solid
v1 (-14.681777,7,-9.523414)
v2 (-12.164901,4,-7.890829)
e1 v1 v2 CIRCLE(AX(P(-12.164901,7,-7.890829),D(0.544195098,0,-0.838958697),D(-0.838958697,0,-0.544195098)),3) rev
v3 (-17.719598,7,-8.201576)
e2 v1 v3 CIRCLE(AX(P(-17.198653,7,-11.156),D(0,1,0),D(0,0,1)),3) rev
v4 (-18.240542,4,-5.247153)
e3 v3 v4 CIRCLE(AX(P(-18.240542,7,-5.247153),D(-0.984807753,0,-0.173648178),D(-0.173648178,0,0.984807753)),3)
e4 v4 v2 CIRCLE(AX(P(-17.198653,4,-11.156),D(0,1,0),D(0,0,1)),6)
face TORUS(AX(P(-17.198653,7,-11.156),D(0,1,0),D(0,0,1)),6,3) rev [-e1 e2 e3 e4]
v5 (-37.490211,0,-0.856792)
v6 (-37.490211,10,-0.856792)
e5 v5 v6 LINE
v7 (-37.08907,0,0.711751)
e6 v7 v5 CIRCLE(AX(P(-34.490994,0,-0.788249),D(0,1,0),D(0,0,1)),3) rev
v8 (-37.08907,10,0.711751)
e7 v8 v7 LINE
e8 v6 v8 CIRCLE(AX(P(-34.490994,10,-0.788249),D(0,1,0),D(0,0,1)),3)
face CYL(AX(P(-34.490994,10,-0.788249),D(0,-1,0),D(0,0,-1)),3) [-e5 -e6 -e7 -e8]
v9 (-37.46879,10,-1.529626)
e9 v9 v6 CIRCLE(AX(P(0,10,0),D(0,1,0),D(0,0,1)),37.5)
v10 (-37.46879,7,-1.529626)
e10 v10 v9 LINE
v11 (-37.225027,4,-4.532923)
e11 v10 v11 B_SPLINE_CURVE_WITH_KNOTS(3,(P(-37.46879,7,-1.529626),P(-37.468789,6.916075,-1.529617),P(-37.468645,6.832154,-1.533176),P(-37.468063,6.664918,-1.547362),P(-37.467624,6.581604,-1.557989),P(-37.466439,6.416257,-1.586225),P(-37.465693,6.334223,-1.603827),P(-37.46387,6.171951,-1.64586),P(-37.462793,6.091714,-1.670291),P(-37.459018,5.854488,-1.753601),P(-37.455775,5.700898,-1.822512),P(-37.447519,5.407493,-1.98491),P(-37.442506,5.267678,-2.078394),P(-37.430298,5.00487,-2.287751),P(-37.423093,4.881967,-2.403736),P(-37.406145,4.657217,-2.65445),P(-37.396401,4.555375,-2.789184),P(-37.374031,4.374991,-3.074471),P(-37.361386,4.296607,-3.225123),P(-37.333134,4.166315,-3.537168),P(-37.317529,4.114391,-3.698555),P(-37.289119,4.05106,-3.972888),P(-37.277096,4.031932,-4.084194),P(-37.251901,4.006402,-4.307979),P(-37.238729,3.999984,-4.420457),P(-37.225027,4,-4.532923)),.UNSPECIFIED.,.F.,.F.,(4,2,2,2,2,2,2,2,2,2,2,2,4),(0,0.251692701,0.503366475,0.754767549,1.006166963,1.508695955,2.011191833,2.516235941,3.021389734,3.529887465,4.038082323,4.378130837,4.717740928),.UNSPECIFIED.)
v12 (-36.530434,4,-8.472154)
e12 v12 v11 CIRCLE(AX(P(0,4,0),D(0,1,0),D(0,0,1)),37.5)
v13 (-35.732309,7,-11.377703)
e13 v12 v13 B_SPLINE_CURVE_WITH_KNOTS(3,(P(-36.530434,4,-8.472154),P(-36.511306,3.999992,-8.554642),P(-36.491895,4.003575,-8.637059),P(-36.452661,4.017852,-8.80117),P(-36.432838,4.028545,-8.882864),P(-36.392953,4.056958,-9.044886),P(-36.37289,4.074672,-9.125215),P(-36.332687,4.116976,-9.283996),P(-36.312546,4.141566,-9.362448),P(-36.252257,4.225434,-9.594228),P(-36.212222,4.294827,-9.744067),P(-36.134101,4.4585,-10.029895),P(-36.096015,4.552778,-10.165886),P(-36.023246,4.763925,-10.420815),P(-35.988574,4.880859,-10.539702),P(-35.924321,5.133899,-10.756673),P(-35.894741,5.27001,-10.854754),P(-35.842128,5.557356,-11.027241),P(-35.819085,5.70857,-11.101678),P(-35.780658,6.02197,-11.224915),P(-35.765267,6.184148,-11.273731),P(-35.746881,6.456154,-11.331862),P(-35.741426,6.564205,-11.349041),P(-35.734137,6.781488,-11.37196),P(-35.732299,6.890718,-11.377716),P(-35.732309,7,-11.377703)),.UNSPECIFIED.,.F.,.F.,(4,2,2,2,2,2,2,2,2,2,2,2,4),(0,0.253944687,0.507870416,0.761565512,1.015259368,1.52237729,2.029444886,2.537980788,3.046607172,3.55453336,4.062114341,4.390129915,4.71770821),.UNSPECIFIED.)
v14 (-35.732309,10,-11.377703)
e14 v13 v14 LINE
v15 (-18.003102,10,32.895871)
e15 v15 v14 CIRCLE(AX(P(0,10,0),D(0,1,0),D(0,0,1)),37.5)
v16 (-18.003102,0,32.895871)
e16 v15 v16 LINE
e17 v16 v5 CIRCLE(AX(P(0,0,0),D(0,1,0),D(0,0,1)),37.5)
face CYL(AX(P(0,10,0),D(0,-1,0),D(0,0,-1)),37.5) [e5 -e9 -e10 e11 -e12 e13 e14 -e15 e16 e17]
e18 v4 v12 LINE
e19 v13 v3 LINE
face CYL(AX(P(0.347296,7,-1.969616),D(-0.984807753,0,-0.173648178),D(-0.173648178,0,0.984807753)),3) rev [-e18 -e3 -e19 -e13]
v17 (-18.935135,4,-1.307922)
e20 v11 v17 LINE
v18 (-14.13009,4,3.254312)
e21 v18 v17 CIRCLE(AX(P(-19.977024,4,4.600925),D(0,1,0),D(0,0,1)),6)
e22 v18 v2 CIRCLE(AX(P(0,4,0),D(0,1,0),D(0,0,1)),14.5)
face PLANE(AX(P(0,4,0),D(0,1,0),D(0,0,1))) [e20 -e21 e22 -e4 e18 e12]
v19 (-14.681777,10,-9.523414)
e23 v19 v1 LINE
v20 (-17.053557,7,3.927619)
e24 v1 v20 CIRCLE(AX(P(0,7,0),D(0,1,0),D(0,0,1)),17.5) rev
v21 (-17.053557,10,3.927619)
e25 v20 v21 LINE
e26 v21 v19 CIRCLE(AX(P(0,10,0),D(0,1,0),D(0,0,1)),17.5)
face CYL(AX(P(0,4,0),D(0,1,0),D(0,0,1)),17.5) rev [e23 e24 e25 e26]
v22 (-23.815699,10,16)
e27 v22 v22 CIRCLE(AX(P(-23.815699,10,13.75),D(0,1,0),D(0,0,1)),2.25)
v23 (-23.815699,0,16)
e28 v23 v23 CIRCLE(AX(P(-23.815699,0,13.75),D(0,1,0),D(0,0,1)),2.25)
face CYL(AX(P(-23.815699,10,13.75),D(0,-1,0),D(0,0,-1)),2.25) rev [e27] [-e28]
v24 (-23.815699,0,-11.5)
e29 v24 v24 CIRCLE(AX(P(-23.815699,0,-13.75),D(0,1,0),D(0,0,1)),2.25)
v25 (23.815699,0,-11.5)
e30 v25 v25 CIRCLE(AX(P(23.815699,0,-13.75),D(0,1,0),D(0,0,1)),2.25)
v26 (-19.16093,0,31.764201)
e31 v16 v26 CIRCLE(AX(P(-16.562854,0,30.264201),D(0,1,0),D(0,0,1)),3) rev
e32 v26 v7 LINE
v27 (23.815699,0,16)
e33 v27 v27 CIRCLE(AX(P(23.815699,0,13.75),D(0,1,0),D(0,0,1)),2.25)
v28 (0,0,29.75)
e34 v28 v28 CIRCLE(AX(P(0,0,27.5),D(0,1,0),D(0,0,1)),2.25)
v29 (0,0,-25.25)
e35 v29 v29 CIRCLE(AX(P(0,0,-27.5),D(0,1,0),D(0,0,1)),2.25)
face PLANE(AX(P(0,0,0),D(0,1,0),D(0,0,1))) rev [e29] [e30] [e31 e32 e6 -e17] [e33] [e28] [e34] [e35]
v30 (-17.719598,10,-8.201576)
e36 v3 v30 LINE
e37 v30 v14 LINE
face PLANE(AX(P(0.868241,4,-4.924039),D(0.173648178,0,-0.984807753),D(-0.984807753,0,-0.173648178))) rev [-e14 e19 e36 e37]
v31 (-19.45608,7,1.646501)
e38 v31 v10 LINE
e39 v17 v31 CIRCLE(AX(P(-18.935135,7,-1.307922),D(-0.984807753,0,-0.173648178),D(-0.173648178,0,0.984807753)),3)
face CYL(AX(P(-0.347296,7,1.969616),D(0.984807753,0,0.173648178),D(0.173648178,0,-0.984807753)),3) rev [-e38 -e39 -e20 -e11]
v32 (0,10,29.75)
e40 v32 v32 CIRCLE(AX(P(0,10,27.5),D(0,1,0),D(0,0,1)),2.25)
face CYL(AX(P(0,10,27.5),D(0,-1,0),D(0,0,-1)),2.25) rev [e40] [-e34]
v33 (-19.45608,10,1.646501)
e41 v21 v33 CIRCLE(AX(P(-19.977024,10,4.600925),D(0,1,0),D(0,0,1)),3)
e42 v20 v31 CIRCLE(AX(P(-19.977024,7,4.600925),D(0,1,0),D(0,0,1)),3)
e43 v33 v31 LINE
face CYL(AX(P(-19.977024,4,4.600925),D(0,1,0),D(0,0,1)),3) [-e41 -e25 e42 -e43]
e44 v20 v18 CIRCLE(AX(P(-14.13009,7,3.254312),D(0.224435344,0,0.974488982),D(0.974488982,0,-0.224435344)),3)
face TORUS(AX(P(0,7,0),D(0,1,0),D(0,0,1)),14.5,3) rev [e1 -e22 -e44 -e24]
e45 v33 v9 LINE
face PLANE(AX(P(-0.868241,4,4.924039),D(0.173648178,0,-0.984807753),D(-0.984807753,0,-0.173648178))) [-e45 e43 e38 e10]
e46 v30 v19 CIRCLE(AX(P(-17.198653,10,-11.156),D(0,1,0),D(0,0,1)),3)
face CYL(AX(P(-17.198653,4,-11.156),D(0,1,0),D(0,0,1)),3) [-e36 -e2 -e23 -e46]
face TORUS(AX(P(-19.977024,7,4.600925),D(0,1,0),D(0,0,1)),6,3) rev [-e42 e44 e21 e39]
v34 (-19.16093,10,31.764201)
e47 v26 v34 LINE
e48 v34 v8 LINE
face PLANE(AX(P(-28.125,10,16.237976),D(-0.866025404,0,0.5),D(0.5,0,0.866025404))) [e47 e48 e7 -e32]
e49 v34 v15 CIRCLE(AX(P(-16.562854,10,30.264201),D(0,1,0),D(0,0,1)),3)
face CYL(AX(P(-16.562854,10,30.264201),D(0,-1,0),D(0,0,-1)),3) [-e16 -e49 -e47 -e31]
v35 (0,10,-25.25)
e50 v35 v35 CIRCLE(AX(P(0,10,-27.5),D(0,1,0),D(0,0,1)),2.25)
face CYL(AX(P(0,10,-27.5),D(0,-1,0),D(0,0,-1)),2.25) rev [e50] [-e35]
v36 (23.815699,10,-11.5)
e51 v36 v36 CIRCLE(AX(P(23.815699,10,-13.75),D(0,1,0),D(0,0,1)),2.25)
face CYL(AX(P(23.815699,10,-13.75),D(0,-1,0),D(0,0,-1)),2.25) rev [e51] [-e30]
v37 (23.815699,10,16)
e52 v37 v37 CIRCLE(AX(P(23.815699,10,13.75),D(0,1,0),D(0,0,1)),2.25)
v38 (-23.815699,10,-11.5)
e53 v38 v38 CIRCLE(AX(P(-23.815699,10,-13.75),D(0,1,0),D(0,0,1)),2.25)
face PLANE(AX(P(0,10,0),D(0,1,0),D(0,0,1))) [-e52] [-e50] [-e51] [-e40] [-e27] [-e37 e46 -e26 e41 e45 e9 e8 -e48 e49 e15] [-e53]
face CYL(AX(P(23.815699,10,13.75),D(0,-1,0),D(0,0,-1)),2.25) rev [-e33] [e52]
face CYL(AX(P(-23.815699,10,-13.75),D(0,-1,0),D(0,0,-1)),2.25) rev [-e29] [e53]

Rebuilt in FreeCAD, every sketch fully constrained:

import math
import FreeCAD as App
import Part
import Sketcher

V = App.Vector
Q = App.Units.Quantity


def edges_at(feature, points):
    """Names of the edges that pass closest to the given points."""
    edges = feature.Shape.Edges
    near = lambda p: min(range(len(edges)), key=lambda i: edges[i].distToShape(Part.Vertex(*p))[0])
    return sorted({f"Edge{near(p) + 1}" for p in points})

doc = App.newDocument("Part")
body = doc.addObject("PartDesign::Body", "Body")

sketch1 = body.newObject("Sketcher::SketchObject", "Sketch")
sketch1.AttachmentSupport = (doc.getObject("XZ_Plane"), [""])
sketch1.MapMode = "FlatFace"
sketch1.addGeometry([
    Part.Circle(V(0, 0, 0), V(0, 0, 1), 37.5),
    Part.Circle(V(-23.8, 13.8, 0), V(0, 0, 1), 2.2),
    Part.Circle(V(0, 27.5, 0), V(0, 0, 1), 2.2),
    Part.Circle(V(23.8, 13.8, 0), V(0, 0, 1), 2.2),
    Part.Circle(V(-23.8, -13.8, 0), V(0, 0, 1), 2.2),
    Part.Circle(V(23.8, -13.8, 0), V(0, 0, 1), 2.2),
    Part.Circle(V(0, -27.5, 0), V(0, 0, 1), 2.2),
], False)
sketch1.addConstraint([
    Sketcher.Constraint("Coincident", 0, 3, -1, 1),
    Sketcher.Constraint("Equal", 1, 2),
    Sketcher.Constraint("Equal", 2, 3),
    Sketcher.Constraint("Equal", 3, 4),
    Sketcher.Constraint("Equal", 4, 5),
    Sketcher.Constraint("Equal", 5, 6),
    Sketcher.Constraint("Symmetric", 3, 3, 4, 3, -1, 1),
    Sketcher.Constraint("Symmetric", 1, 3, 5, 3, -1, 1),
    Sketcher.Constraint("Symmetric", 2, 3, 6, 3, -1, 1),
    Sketcher.Constraint("Symmetric", 1, 3, 3, 3, -2),
    Sketcher.Constraint("PointOnObject", 2, 3, -2),
    Sketcher.Constraint("Diameter", 0, 75.0),
    Sketcher.Constraint("Diameter", 1, 4.5),
    Sketcher.Constraint("DistanceY", -1, 1, 2, 3, 27.5),
    Sketcher.Constraint("DistanceY", 4, 3, 1, 3, 27.5),
    Sketcher.Constraint("DistanceX", 1, 3, -1, 1, 23.815699),
])
pad1 = body.newObject("PartDesign::Pad", "Pad")
pad1.Profile = sketch1
pad1.Length = 10
pad1.Reversed = True

sketch2 = body.newObject("Sketcher::SketchObject", "Sketch001")
sketch2.AttachmentSupport = (doc.getObject("XZ_Plane"), [""])
sketch2.MapMode = "FlatFace"
sketch2.AttachmentOffset = App.Placement(V(0, 0, -10), App.Rotation())
sketch2.addGeometry(Part.Circle(V(0, 0, 0), V(0, 0, 1), 18), False)
sketch2.addConstraint([
    Sketcher.Constraint("Coincident", 0, 3, -1, 1),
    Sketcher.Constraint("Diameter", 0, 35.0),
])
pocket1 = body.newObject("PartDesign::Pocket", "Pocket")
pocket1.Profile = sketch2
pocket1.Length = 6
pocket1.Reversed = True

sketch3 = body.newObject("Sketcher::SketchObject", "Sketch002")
sketch3.AttachmentSupport = (doc.getObject("XZ_Plane"), [""])
sketch3.MapMode = "FlatFace"
sketch3.AttachmentOffset = App.Placement(V(0, 0, -10), App.Rotation())
sketch3.addGeometry([
    Part.LineSegment(V(-37, -2, 0), V(-17, 2, 0)),
    Part.ArcOfCircle(Part.Circle(V(0, 0, 0), V(0, 0, 1), 17), math.radians(173), math.radians(207)),
    Part.LineSegment(V(-16, -8, 0), V(-36, -11, 0)),
    Part.ArcOfCircle(Part.Circle(V(0, 0, 0), V(0, 0, 1), 37), math.radians(-177.66), math.radians(-162.34)),
], False)
sketch3.addConstraint([
    Sketcher.Constraint("Coincident", 0, 2, 1, 1),
    Sketcher.Constraint("Coincident", 1, 2, 2, 1),
    Sketcher.Constraint("Coincident", 2, 2, 3, 2),
    Sketcher.Constraint("Coincident", 3, 1, 0, 1),
    Sketcher.Constraint("Coincident", 1, 3, -1, 1),
    Sketcher.Constraint("Coincident", 3, 3, -1, 1),
    Sketcher.Constraint("Parallel", 0, 2),
    Sketcher.Constraint("Equal", 0, 2),
    Sketcher.Constraint("Radius", 1, 17.5),
    Sketcher.Constraint("Radius", 3, 37.5),
    Sketcher.Constraint("Angle", 0, Q("10 deg")),
    Sketcher.Constraint("DistanceX", 0, 2, -1, 1, 17.383969),
])
pocket2 = body.newObject("PartDesign::Pocket", "Pocket001")
pocket2.Profile = sketch3
pocket2.Length = 6
pocket2.Reversed = True

sketch4 = body.newObject("Sketcher::SketchObject", "Sketch003")
sketch4.AttachmentSupport = (doc.getObject("XZ_Plane"), [""])
sketch4.MapMode = "FlatFace"
sketch4.addGeometry([
    Part.LineSegment(V(-38, 0, 0), V(-19, 32, 0)),
    Part.ArcOfCircle(Part.Circle(V(0, 0, 0), V(0, 0, 1), 38), math.radians(120), math.radians(180)),
], False)
sketch4.addConstraint([
    Sketcher.Constraint("Coincident", 0, 1, 1, 2),
    Sketcher.Constraint("Coincident", 1, 1, 0, 2),
    Sketcher.Constraint("Coincident", 1, 3, -1, 1),
    Sketcher.Constraint("PointOnObject", 0, 1, -1),
    Sketcher.Constraint("Radius", 1, 37.5),
    Sketcher.Constraint("Angle", 0, Q("60 deg")),
])
pocket3 = body.newObject("PartDesign::Pocket", "Pocket002")
pocket3.Profile = sketch4
pocket3.Length = 10
doc.recompute()

fillet = body.newObject("PartDesign::Fillet", "Fillet")
fillet.Base = (pocket3, edges_at(pocket3, [
    (17.234, 4, 3.039),
    (-27.426, 4, 0.241),
    (-15.647, 7, -7.836),
    (-25.69, 4, -9.607),
    (-17.384, 7, 2.012),
    (-18.75, 5, 32.476),
    (-37.5, 5, 0),
]))
fillet.Radius = 3

doc.recompute()
